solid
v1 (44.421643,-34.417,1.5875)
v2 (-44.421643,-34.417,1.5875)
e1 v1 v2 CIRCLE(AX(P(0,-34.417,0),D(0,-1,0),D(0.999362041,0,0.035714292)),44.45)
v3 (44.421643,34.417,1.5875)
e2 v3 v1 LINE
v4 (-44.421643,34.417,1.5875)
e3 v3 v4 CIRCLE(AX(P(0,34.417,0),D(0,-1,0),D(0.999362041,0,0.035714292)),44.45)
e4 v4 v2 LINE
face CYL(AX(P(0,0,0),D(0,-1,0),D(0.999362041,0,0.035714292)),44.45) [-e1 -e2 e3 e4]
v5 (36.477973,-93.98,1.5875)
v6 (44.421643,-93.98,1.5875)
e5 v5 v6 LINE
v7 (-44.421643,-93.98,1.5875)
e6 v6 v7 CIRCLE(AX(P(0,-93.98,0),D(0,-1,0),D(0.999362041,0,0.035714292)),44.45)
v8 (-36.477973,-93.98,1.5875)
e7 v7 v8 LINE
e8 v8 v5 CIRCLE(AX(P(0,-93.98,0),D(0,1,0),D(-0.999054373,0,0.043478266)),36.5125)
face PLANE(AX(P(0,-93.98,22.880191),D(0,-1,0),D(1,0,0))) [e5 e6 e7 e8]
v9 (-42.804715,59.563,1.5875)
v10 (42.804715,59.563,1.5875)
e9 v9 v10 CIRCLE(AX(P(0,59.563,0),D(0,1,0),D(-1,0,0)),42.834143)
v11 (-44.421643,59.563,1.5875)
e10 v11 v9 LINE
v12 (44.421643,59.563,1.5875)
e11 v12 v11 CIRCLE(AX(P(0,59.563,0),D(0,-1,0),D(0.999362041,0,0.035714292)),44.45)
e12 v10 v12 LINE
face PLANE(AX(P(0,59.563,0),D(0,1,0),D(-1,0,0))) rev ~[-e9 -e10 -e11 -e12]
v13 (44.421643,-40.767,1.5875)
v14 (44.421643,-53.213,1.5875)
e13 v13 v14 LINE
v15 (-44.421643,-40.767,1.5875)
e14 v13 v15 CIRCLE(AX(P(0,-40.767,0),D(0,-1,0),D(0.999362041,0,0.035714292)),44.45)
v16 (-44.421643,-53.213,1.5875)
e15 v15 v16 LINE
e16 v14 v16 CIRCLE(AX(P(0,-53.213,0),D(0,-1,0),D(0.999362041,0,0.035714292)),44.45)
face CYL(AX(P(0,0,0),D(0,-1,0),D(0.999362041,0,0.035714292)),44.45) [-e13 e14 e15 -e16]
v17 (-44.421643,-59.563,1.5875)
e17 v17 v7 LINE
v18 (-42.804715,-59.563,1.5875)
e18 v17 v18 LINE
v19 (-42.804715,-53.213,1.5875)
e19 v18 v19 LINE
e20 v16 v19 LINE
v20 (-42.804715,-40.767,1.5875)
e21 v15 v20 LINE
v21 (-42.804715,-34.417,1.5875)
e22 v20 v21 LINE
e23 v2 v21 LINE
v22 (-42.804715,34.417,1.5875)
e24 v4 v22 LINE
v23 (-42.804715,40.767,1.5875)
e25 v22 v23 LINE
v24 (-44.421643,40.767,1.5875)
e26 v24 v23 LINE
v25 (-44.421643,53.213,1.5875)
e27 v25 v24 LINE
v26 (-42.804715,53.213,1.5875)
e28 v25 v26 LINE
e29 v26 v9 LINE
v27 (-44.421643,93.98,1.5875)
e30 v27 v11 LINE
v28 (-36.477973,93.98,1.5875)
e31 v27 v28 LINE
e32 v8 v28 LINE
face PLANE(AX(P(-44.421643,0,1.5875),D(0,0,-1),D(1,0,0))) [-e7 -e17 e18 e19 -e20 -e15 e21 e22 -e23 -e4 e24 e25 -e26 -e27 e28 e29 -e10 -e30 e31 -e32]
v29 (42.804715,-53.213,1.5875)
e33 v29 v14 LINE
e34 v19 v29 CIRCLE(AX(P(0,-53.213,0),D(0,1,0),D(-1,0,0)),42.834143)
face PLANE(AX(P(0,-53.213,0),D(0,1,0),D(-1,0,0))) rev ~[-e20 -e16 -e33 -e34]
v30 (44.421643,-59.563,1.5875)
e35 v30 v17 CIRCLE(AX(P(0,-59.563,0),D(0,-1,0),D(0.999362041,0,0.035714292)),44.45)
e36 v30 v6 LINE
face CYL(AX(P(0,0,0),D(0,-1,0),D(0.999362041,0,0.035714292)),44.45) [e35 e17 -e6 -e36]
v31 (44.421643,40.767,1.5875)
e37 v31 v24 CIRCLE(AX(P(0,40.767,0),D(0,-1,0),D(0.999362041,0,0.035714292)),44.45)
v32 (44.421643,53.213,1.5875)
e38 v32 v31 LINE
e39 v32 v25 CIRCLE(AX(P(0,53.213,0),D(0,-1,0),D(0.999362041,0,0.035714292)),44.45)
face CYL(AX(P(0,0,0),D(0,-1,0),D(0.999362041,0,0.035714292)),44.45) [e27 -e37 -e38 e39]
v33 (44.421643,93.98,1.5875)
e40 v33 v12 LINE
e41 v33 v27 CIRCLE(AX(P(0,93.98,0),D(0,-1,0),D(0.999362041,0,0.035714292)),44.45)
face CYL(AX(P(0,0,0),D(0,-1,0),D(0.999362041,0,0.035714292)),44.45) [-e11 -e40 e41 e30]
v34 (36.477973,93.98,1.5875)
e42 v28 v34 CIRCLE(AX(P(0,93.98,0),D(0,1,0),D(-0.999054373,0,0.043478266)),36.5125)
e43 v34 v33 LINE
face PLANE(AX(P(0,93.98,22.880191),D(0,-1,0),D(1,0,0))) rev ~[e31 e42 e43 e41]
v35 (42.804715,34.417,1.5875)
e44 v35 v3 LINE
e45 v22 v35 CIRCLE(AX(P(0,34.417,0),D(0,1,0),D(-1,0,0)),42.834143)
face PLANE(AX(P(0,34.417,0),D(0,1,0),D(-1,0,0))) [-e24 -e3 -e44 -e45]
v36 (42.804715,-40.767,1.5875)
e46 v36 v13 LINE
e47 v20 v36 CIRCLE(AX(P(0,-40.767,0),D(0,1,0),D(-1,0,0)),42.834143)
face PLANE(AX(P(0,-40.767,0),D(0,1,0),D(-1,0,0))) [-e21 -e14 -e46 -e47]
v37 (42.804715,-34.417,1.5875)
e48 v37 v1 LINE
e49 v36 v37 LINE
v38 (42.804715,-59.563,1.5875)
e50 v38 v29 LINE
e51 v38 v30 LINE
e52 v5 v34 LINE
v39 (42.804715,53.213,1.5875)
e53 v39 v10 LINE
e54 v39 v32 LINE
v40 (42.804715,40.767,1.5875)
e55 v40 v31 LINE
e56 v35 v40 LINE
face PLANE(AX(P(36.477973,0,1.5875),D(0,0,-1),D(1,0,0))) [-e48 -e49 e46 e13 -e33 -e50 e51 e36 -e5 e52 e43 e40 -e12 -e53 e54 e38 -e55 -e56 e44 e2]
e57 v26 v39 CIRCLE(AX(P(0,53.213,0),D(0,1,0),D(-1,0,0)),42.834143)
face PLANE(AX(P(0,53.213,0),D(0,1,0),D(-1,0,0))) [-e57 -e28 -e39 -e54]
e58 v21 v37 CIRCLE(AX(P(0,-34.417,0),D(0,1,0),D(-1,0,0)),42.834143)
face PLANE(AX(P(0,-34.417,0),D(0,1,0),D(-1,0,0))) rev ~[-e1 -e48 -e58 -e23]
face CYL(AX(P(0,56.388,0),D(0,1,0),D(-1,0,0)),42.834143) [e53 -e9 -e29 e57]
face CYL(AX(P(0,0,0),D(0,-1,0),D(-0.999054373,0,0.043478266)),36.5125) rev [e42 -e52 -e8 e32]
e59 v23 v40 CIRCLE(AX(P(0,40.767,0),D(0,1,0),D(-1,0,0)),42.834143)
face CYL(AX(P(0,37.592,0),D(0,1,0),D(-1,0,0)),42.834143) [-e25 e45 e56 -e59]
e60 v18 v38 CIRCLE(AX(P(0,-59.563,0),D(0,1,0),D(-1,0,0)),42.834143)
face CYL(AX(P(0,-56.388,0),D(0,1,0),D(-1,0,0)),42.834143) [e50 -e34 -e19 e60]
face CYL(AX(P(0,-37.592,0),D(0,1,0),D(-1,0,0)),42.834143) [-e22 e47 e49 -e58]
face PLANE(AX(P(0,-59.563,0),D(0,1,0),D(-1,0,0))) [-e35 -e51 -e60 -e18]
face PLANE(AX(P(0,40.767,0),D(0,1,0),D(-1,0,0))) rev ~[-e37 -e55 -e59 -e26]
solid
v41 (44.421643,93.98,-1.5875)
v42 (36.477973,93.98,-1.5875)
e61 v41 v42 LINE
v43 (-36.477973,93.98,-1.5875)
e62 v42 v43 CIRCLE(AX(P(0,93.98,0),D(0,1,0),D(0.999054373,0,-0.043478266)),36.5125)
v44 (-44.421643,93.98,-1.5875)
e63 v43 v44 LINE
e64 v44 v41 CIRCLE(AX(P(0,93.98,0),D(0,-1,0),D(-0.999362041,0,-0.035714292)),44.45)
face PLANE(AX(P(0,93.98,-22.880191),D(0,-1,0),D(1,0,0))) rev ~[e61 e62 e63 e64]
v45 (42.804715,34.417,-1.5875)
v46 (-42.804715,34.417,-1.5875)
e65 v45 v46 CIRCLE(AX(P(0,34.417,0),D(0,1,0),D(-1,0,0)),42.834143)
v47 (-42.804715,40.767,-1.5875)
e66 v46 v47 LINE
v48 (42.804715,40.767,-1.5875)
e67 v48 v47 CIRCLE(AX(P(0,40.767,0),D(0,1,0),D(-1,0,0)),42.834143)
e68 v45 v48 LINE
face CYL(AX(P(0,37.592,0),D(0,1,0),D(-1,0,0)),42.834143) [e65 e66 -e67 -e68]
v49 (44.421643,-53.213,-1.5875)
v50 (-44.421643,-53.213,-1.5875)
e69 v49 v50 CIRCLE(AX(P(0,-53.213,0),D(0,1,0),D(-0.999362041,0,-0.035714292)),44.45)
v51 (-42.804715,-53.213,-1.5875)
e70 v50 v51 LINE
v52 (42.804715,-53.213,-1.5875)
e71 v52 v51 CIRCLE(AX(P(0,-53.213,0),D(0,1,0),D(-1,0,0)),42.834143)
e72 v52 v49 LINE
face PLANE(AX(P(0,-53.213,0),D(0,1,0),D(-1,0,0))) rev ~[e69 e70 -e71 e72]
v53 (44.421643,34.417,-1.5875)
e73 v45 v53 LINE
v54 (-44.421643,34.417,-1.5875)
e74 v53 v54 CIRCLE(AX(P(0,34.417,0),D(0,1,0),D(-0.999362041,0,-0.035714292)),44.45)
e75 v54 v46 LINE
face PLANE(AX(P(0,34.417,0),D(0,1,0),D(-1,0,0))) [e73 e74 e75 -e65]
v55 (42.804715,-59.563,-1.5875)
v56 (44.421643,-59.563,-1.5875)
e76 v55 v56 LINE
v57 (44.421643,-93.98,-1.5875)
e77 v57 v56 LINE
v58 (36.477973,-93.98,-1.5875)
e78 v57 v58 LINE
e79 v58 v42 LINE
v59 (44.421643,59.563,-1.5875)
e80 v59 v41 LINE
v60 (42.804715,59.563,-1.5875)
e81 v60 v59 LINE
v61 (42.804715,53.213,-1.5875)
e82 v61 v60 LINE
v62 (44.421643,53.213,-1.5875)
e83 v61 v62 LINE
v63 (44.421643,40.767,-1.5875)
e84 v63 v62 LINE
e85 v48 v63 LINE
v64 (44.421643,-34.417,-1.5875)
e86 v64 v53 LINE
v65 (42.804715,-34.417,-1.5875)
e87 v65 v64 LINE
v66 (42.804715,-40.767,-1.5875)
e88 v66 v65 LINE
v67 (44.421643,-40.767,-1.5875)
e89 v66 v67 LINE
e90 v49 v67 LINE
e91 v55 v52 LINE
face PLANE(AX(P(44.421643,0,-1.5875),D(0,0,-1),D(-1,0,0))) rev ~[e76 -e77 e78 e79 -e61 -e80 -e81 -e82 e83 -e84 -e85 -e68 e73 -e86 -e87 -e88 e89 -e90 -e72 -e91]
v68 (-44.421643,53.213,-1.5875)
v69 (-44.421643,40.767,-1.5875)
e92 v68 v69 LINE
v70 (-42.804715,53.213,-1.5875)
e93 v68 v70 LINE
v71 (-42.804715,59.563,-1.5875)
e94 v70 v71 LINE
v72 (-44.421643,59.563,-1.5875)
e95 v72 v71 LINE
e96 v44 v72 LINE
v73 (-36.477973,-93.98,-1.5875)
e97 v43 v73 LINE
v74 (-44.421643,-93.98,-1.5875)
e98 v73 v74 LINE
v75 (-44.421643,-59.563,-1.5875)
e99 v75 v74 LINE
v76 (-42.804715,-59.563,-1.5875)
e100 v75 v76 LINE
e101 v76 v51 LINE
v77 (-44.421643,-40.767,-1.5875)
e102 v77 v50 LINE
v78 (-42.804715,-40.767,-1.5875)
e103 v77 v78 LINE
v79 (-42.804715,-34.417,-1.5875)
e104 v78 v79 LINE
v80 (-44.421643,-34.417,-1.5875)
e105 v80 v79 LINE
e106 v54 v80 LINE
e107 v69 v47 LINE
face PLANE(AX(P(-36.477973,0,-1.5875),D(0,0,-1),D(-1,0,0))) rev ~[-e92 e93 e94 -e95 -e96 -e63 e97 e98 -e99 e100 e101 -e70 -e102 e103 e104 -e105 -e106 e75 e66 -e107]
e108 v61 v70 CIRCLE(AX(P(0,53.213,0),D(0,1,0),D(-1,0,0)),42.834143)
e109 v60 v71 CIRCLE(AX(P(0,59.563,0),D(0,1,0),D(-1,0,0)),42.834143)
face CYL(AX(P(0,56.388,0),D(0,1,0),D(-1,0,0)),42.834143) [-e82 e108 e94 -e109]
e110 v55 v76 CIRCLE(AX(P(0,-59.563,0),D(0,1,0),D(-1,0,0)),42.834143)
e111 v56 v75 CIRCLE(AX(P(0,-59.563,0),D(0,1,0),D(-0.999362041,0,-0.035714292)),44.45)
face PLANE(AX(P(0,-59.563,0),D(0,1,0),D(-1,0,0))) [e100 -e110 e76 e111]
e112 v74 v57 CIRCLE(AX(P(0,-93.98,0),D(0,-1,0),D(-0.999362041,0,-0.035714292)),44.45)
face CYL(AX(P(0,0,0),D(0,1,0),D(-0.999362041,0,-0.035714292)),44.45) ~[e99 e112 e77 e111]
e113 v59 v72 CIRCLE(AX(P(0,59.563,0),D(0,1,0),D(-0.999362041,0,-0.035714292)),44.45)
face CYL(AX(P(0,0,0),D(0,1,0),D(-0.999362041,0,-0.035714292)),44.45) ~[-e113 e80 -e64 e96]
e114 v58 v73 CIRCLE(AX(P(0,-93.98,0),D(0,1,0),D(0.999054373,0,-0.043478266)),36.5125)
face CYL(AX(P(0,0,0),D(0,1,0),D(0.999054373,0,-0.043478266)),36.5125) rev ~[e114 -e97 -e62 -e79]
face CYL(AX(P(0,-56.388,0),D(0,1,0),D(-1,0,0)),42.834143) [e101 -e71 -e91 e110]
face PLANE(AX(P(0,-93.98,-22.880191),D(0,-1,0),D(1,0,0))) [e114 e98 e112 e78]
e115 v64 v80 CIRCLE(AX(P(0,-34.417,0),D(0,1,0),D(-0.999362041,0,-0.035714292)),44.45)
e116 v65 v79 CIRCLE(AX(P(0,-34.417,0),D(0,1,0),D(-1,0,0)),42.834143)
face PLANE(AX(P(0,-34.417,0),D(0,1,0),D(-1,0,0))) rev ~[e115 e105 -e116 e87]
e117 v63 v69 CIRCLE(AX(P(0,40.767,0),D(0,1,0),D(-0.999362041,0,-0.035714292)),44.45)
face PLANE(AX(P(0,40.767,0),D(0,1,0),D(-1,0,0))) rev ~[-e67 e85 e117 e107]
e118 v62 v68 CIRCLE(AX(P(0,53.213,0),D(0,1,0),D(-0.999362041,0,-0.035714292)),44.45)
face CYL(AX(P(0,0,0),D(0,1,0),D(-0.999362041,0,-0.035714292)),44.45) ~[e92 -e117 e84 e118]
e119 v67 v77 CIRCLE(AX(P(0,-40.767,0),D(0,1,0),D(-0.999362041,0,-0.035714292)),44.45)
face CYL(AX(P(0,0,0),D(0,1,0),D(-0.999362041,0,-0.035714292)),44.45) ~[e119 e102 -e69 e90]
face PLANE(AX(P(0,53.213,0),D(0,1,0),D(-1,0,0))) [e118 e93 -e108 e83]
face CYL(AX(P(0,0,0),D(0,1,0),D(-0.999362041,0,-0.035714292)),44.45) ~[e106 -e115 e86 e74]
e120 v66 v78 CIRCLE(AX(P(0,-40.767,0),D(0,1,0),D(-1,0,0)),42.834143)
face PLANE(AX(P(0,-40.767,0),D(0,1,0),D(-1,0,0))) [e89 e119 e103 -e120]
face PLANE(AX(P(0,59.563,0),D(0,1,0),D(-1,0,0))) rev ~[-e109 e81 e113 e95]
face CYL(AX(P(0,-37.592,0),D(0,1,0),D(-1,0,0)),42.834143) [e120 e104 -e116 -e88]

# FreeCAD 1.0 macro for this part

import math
import FreeCAD as App
import Part
import Sketcher

V = App.Vector
Q = App.Units.Quantity


def add_polygon(sketch, points):
    """Adds a closed chain of lines whose ends are joined by coincident constraints."""
    first, n = sketch.GeometryCount, len(points)
    for a, b in zip(points, points[1:] + points[:1]):
        sketch.addGeometry(Part.LineSegment(App.Vector(*a, 0), App.Vector(*b, 0)), False)
    for i in range(n):
        sketch.addConstraint(Sketcher.Constraint("Coincident", first + i, 2, first + (i + 1) % n, 1))

doc = App.newDocument("Part")
body = doc.addObject("PartDesign::Body", "Body")
body.AllowCompound = True

# Sketch on XZ plane
sketch1 = doc.addObject("Sketcher::SketchObject", "Sketch")
body.addObject(sketch1)
sketch1.AttachmentSupport = (doc.XZ_Plane, [""])
sketch1.MapMode = "FlatFace"
sketch1.addGeometry(Part.ArcOfCircle(Part.Circle(V(0, 0, 0), V(0, 0, 1), 37), math.radians(-178), math.radians(-2)), False)
sketch1.addGeometry(Part.LineSegment(V(-36, -2, 0), V(-44, -2, 0)), False)
sketch1.addGeometry(Part.ArcOfCircle(Part.Circle(V(0, 0, 0), V(0, 0, 1), 44), math.radians(-178), math.radians(-2)), False)
sketch1.addGeometry(Part.LineSegment(V(44, -2, 0), V(36, -2, 0)), False)
sketch1.addGeometry(Part.LineSegment(V(36, 2, 0), V(44, 2, 0)), False)
sketch1.addGeometry(Part.ArcOfCircle(Part.Circle(V(0, 0, 0), V(0, 0, 1), 44), math.radians(2), math.radians(178)), False)
sketch1.addGeometry(Part.LineSegment(V(-44, 2, 0), V(-36, 2, 0)), False)
sketch1.addGeometry(Part.ArcOfCircle(Part.Circle(V(0, 0, 0), V(0, 0, 1), 37), math.radians(2), math.radians(178)), False)
sketch1.addConstraint(Sketcher.Constraint("Coincident", 0, 1, 1, 1))
sketch1.addConstraint(Sketcher.Constraint("Coincident", 1, 2, 2, 1))
sketch1.addConstraint(Sketcher.Constraint("Coincident", 2, 2, 3, 1))
sketch1.addConstraint(Sketcher.Constraint("Coincident", 3, 2, 0, 2))
sketch1.addConstraint(Sketcher.Constraint("Coincident", 4, 2, 5, 1))
sketch1.addConstraint(Sketcher.Constraint("Coincident", 5, 2, 6, 1))
sketch1.addConstraint(Sketcher.Constraint("Coincident", 6, 2, 7, 2))
sketch1.addConstraint(Sketcher.Constraint("Coincident", 7, 1, 4, 1))
sketch1.addConstraint(Sketcher.Constraint("Horizontal", 1))
sketch1.addConstraint(Sketcher.Constraint("Horizontal", 3))
sketch1.addConstraint(Sketcher.Constraint("Horizontal", 4))
sketch1.addConstraint(Sketcher.Constraint("Horizontal", 6))
sketch1.addConstraint(Sketcher.Constraint("Coincident", 0, 3, -1, 1))
sketch1.addConstraint(Sketcher.Constraint("Coincident", 2, 3, -1, 1))
sketch1.addConstraint(Sketcher.Constraint("Coincident", 5, 3, -1, 1))
sketch1.addConstraint(Sketcher.Constraint("Coincident", 7, 3, -1, 1))
sketch1.addConstraint(Sketcher.Constraint("Equal", 2, 5))
sketch1.addConstraint(Sketcher.Constraint("Equal", 0, 7))
sketch1.addConstraint(Sketcher.Constraint("Horizontal", 1, 2, 2, 2))
sketch1.addConstraint(Sketcher.Constraint("Horizontal", 4, 2, 5, 2))
sketch1.addConstraint(Sketcher.Constraint("Vertical", 2, 2, 4, 2))
sketch1.addConstraint(Sketcher.Constraint("Radius", 2, Q("1.75 in")))
sketch1.addConstraint(Sketcher.Constraint("Radius", 0, Q("1.4375 in")))
sketch1.addConstraint(Sketcher.Constraint("DistanceY", 0, 1, -1, 1, Q("0.0625 in")))
pad1 = doc.addObject("PartDesign::Pad", "Pad")
body.addObject(pad1)
pad1.Profile = sketch1
pad1.Length = Q("7.4 in")
pad1.Midplane = True

# Sketch on XY plane
sketch2 = doc.addObject("Sketcher::SketchObject", "Sketch001")
body.addObject(sketch2)
sketch2.AttachmentSupport = (doc.XY_Plane, [""])
sketch2.MapMode = "FlatFace"
add_polygon(sketch2, [(-46, 59.6), (-46, 53.2), (-42.8, 53.2), (-42.8, 59.6)])  # lines 0-3
add_polygon(sketch2, [(-46, 40.8), (-46, 34.4), (-42.8, 34.4), (-42.8, 40.8)])  # lines 4-7
add_polygon(sketch2, [(-46, -34.4), (-46, -40.8), (-42.8, -40.8), (-42.8, -34.4)])  # lines 8-11
add_polygon(sketch2, [(-46, -53.2), (-46, -59.6), (-42.8, -59.6), (-42.8, -53.2)])  # lines 12-15
sketch2.addConstraint(Sketcher.Constraint("Vertical", 0))
sketch2.addConstraint(Sketcher.Constraint("Horizontal", 1))
sketch2.addConstraint(Sketcher.Constraint("Vertical", 2))
sketch2.addConstraint(Sketcher.Constraint("Horizontal", 3))
sketch2.addConstraint(Sketcher.Constraint("Vertical", 4))
sketch2.addConstraint(Sketcher.Constraint("Horizontal", 5))
sketch2.addConstraint(Sketcher.Constraint("Vertical", 6))
sketch2.addConstraint(Sketcher.Constraint("Horizontal", 7))
sketch2.addConstraint(Sketcher.Constraint("Vertical", 8))
sketch2.addConstraint(Sketcher.Constraint("Horizontal", 9))
sketch2.addConstraint(Sketcher.Constraint("Vertical", 10))
sketch2.addConstraint(Sketcher.Constraint("Horizontal", 11))
sketch2.addConstraint(Sketcher.Constraint("Vertical", 12))
sketch2.addConstraint(Sketcher.Constraint("Horizontal", 13))
sketch2.addConstraint(Sketcher.Constraint("Vertical", 14))
sketch2.addConstraint(Sketcher.Constraint("Horizontal", 15))
sketch2.addConstraint(Sketcher.Constraint("Symmetric", 7, 2, 8, 2, -1))
sketch2.addConstraint(Sketcher.Constraint("Symmetric", 5, 2, 10, 2, -1))
sketch2.addConstraint(Sketcher.Constraint("Symmetric", 3, 2, 12, 2, -1))
sketch2.addConstraint(Sketcher.Constraint("Symmetric", 1, 2, 14, 2, -1))
sketch2.addConstraint(Sketcher.Constraint("Vertical", 3, 2, 4, 2))
sketch2.addConstraint(Sketcher.Constraint("Vertical", 2, 2, 5, 2))
sketch2.addConstraint(Sketcher.Constraint("Equal", 2, 4))
sketch2.addConstraint(Sketcher.Constraint("DistanceY", 0, 2, 0, 1, Q("0.25 in")))
sketch2.addConstraint(Sketcher.Constraint("DistanceY", 8, 2, 0, 2, Q("3.7 in")))
sketch2.addConstraint(Sketcher.Constraint("DistanceX", 1, 1, 1, 2, Q("0.125 in")))
sketch2.addConstraint(Sketcher.Constraint("DistanceY", 4, 2, 0, 2, Q("0.74 in")))
sketch2.addConstraint(Sketcher.Constraint("DistanceX", 0, 2, -1, 1, 46.009143))
groove = doc.addObject("PartDesign::Groove", "Groove")
body.addObject(groove)
groove.Profile = sketch2
groove.ReferenceAxis = (sketch2, ["V_Axis"])
groove.Angle = 360

doc.recompute()
